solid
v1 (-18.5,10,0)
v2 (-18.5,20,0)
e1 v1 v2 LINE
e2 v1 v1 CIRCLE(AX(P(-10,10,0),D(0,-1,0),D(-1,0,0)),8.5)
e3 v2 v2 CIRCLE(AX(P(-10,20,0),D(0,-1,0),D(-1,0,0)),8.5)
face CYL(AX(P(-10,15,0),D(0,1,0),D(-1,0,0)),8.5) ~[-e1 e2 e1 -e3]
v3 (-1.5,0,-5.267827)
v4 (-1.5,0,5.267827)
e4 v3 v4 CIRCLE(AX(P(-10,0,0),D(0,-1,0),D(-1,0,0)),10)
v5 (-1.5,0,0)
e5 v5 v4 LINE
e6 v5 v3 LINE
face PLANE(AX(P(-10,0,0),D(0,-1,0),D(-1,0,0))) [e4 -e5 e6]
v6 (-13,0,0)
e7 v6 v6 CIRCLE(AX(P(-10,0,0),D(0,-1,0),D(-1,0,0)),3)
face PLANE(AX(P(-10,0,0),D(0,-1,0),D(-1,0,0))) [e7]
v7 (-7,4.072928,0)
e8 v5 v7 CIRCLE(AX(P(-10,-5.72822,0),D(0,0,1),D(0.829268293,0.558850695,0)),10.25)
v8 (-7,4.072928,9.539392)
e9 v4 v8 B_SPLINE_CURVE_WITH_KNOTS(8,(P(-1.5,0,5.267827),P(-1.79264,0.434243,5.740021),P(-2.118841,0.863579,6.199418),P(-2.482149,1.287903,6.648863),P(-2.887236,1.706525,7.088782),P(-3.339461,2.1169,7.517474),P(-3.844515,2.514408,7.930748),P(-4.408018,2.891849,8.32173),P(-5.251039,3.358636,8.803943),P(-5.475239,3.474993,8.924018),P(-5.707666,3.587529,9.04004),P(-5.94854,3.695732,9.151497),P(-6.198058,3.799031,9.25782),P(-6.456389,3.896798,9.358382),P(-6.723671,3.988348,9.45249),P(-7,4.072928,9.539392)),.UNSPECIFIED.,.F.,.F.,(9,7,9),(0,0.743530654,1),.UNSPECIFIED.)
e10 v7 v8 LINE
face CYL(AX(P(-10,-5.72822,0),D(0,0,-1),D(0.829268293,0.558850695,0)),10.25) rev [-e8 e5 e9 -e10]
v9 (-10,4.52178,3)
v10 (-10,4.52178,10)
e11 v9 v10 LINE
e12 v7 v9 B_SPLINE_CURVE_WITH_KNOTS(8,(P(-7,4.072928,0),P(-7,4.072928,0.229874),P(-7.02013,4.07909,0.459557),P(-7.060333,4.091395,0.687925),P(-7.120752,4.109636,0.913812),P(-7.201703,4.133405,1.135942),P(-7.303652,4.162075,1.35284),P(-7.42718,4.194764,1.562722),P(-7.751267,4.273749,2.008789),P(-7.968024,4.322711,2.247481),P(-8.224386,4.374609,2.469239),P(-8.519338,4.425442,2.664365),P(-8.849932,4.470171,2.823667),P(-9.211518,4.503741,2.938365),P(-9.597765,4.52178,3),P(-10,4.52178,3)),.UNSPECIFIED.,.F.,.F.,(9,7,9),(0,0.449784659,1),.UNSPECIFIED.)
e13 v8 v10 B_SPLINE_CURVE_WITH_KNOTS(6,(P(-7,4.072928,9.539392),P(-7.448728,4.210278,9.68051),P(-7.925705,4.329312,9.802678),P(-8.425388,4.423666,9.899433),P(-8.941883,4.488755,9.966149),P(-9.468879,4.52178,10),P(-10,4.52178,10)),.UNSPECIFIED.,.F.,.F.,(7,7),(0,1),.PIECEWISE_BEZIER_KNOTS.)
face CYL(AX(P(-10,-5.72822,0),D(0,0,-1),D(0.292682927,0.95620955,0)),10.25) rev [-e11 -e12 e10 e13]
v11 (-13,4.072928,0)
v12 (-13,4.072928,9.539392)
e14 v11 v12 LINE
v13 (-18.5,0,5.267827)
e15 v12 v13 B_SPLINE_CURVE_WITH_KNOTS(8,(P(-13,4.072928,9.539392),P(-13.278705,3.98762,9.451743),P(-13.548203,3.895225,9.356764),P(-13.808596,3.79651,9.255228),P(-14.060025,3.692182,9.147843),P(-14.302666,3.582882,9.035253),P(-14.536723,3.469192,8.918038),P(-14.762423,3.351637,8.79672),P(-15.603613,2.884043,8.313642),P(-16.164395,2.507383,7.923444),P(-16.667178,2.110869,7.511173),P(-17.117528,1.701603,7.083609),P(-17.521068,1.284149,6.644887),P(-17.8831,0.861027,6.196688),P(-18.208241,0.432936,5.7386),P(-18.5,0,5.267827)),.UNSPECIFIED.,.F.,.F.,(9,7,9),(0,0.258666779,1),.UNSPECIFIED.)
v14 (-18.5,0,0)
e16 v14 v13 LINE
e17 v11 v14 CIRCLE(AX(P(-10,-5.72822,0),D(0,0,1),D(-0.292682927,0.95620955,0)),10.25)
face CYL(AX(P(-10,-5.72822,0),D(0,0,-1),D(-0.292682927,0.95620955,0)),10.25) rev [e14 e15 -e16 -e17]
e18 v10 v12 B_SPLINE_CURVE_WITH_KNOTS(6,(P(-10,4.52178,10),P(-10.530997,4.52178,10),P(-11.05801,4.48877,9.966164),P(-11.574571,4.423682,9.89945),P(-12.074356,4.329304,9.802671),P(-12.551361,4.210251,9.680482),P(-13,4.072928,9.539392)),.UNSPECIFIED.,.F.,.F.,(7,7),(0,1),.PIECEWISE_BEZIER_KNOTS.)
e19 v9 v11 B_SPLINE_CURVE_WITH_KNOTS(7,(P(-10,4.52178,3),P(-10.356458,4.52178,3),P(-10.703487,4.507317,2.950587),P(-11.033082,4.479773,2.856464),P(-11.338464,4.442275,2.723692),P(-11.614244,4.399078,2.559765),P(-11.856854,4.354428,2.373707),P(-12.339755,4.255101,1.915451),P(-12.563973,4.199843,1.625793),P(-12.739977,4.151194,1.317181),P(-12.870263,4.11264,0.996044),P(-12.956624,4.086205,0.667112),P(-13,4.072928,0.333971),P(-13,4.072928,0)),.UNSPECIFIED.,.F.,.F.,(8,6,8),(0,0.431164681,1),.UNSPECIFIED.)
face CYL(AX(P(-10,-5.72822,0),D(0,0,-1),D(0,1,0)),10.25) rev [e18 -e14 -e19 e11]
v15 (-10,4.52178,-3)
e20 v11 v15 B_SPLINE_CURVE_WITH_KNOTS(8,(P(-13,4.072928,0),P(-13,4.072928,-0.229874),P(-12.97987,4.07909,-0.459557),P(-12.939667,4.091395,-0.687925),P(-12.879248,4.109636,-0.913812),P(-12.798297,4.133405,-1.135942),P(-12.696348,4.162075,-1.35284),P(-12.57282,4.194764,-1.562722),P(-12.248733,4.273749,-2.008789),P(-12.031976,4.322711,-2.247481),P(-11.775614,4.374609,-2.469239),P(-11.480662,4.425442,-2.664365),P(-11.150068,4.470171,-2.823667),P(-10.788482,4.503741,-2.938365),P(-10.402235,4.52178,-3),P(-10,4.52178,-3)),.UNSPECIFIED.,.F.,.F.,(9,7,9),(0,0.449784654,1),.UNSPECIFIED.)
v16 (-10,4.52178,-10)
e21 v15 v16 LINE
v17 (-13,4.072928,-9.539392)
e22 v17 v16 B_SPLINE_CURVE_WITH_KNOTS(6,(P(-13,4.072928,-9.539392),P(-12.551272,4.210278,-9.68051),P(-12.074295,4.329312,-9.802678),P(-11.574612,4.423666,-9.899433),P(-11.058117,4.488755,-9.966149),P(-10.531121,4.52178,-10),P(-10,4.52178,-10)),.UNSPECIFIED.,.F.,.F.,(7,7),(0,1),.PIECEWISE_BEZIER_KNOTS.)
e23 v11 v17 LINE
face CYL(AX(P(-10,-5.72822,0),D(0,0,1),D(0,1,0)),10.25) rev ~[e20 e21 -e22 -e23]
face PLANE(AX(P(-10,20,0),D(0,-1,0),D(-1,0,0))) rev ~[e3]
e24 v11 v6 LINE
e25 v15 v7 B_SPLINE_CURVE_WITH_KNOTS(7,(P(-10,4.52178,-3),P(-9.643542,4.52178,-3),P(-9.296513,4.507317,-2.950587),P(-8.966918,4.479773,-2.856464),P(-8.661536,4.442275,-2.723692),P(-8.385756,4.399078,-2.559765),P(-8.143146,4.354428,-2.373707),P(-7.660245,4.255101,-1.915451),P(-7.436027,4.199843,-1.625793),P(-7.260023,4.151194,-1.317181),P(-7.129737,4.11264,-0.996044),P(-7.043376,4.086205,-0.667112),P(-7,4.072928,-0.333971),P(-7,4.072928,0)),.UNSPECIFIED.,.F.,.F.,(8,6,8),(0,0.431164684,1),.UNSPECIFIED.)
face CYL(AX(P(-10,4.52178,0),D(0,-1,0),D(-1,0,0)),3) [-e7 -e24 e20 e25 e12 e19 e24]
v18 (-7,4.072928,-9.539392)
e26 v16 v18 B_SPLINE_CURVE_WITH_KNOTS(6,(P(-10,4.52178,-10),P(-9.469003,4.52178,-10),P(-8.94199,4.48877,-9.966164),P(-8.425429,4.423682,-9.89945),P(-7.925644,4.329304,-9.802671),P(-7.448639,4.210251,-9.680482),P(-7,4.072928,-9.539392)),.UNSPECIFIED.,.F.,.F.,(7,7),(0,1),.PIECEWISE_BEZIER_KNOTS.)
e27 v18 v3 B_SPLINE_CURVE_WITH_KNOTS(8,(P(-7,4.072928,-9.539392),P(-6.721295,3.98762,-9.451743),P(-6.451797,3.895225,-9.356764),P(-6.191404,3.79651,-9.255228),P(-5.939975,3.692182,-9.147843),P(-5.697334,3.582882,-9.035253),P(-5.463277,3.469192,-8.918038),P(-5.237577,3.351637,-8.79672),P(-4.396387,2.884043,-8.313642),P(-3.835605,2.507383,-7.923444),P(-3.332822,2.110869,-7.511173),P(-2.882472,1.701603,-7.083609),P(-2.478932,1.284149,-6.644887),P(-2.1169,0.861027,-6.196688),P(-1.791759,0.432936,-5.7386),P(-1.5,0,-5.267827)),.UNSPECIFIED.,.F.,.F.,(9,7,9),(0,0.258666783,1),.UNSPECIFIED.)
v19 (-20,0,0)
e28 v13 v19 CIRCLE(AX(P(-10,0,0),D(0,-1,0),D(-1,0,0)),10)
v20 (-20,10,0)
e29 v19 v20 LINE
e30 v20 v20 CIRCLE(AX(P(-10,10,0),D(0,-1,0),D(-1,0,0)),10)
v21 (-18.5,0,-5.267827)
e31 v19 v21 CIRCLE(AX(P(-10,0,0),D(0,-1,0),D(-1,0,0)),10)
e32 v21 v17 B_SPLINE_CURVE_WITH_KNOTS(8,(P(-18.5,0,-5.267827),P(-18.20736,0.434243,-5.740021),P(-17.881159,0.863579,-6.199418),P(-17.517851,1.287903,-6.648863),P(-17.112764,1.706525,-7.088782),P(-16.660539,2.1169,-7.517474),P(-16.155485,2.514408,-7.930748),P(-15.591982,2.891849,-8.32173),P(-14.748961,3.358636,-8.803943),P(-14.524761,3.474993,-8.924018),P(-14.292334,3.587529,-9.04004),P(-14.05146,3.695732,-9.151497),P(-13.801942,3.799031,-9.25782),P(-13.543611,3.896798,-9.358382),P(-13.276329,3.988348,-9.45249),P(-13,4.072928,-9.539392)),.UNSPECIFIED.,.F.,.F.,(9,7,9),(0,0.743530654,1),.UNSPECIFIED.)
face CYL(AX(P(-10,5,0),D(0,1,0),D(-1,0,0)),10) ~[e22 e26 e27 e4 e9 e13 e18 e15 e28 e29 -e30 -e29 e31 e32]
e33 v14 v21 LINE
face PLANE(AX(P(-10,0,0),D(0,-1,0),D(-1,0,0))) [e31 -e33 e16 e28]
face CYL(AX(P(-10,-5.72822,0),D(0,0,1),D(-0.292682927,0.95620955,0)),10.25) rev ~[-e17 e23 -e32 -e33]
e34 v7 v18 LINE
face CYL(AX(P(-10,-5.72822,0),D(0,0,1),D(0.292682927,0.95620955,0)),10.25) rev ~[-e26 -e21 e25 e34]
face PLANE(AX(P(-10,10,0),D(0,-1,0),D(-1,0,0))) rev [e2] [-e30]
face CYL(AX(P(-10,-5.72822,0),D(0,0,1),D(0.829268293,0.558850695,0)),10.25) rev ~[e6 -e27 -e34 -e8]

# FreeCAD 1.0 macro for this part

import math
import FreeCAD as App
import Part
import Sketcher

doc = App.newDocument("Part")
body = doc.addObject("PartDesign::Body", "Body")

# Sketch on XY plane
sketch1 = body.newObject("Sketcher::SketchObject", "Sketch")
sketch1.AttachmentSupport = (doc.getObject("XY_Plane"), [""])
sketch1.MapMode = "FlatFace"
sketch1.addGeometry([
    Part.LineSegment(App.Vector(-18.5, 10, 0), App.Vector(-20, 10, 0)),  # 0
    Part.LineSegment(App.Vector(-20, 10, 0), App.Vector(-20, 0, 0)),  # 1
    Part.LineSegment(App.Vector(-20, 0, 0), App.Vector(-10, 0, 0)),  # 2
    Part.LineSegment(App.Vector(-10, 0, 0), App.Vector(-10, 20, 0)),  # 3
    Part.LineSegment(App.Vector(-10, 20, 0), App.Vector(-18.5, 20, 0)),  # 4
    Part.LineSegment(App.Vector(-18.5, 20, 0), App.Vector(-18.5, 10, 0)),  # 5
], False)
sketch1.addGeometry(Part.LineSegment(App.Vector(-10, 20, 0), App.Vector(-10, 0, 0)), True)  # axis
sketch1.addConstraint([
    Sketcher.Constraint("Coincident", 0, 2, 1, 1),
    Sketcher.Constraint("Coincident", 1, 2, 2, 1),
    Sketcher.Constraint("Coincident", 2, 2, 3, 1),
    Sketcher.Constraint("Coincident", 3, 2, 4, 1),
    Sketcher.Constraint("Coincident", 4, 2, 5, 1),
    Sketcher.Constraint("Coincident", 5, 2, 0, 1),
    Sketcher.Constraint("Horizontal", 0),
    Sketcher.Constraint("Vertical", 1),
    Sketcher.Constraint("Horizontal", 2),
    Sketcher.Constraint("Vertical", 3),
    Sketcher.Constraint("Horizontal", 4),
    Sketcher.Constraint("Vertical", 5),
    Sketcher.Constraint("Vertical", 6),
    Sketcher.Constraint("Coincident", 6, 1, 3, 2),
    Sketcher.Constraint("PointOnObject", 1, 2, -1),
    Sketcher.Constraint("PointOnObject", 6, 2, -1),
    Sketcher.Constraint("Equal", 2, 1),
    Sketcher.Constraint("Equal", 1, 5),
    Sketcher.Constraint("DistanceX", 2, 1, 2, 2, 10.0),
    Sketcher.Constraint("DistanceX", 0, 2, 0, 1, 1.5),
    Sketcher.Constraint("DistanceX", 0, 2, -1, 1, 20.0),
])
revolution = body.newObject("PartDesign::Revolution", "Revolution")
revolution.Profile = sketch1
revolution.ReferenceAxis = (sketch1, ["Axis0"])
revolution.Angle = 360

# Sketch on XY plane
sketch2 = body.newObject("Sketcher::SketchObject", "Sketch001")
sketch2.AttachmentSupport = (doc.getObject("XY_Plane"), [""])
sketch2.MapMode = "FlatFace"
sketch2.addGeometry([
    Part.ArcOfCircle(Part.Circle(App.Vector(-10, -5.7, 0), App.Vector(0, 0, 1), 10.2), math.radians(107), math.radians(146)),  # 0
    Part.LineSegment(App.Vector(-18.5, 0, 0), App.Vector(-1.5, 0, 0)),  # 1
    Part.ArcOfCircle(Part.Circle(App.Vector(-10, -5.7, 0), App.Vector(0, 0, 1), 10.2), math.radians(34), math.radians(73)),  # 2
    Part.ArcOfCircle(Part.Circle(App.Vector(-10, -5.7, 0), App.Vector(0, 0, 1), 10.3), math.radians(72.98), math.radians(90)),  # 3
    Part.ArcOfCircle(Part.Circle(App.Vector(-10, -5.7, 0), App.Vector(0, 0, 1), 10.3), math.radians(90), math.radians(107.02)),  # 4
], False)
sketch2.addConstraint([
    Sketcher.Constraint("Coincident", 0, 2, 1, 1),
    Sketcher.Constraint("Coincident", 1, 2, 2, 1),
    Sketcher.Constraint("Tangent", 2, 2, 3, 1),
    Sketcher.Constraint("Tangent", 3, 2, 4, 1),
    Sketcher.Constraint("Tangent", 4, 2, 0, 1),
    Sketcher.Constraint("Horizontal", 1),
    Sketcher.Constraint("Coincident", 2, 3, 0, 3),
    Sketcher.Constraint("Equal", 0, 2),
    Sketcher.Constraint("PointOnObject", 0, 2, -1),
    Sketcher.Constraint("Horizontal", 2, 2, 4, 2),
    Sketcher.Constraint("Vertical", 4, 3, 3, 2),
    Sketcher.Constraint("DistanceX", 1, 1, 1, 2, 17.0),
    Sketcher.Constraint("Radius", 0, 10.25),
    Sketcher.Constraint("DistanceX", 0, 3, -1, 1, 10.0),
    Sketcher.Constraint("DistanceX", 2, 2, -1, 1, 7.0),
])
pocket1 = body.newObject("PartDesign::Pocket", "Pocket")
pocket1.Profile = sketch2
pocket1.Type = "ThroughAll"
pocket1.Midplane = True

# Sketch on XY plane
sketch3 = body.newObject("Sketcher::SketchObject", "Sketch002")
sketch3.AttachmentSupport = (doc.getObject("XY_Plane"), [""])
sketch3.MapMode = "FlatFace"
sketch3.addGeometry([
    Part.LineSegment(App.Vector(-10, 0, 0), App.Vector(-10, 4.5, 0)),
    Part.LineSegment(App.Vector(-10, 4.5, 0), App.Vector(-13, 4.5, 0)),
    Part.LineSegment(App.Vector(-13, 4.5, 0), App.Vector(-13, 0, 0)),
    Part.LineSegment(App.Vector(-13, 0, 0), App.Vector(-10, 0, 0)),
], False)
sketch3.addGeometry(Part.LineSegment(App.Vector(-10, 4.5, 0), App.Vector(-10, 0, 0)), True)  # axis
sketch3.addConstraint([
    Sketcher.Constraint("Coincident", 0, 2, 1, 1),
    Sketcher.Constraint("Coincident", 1, 2, 2, 1),
    Sketcher.Constraint("Coincident", 2, 2, 3, 1),
    Sketcher.Constraint("Coincident", 3, 2, 0, 1),
    Sketcher.Constraint("Vertical", 0),
    Sketcher.Constraint("Horizontal", 1),
    Sketcher.Constraint("Vertical", 2),
    Sketcher.Constraint("Horizontal", 3),
    Sketcher.Constraint("Vertical", 4),
    Sketcher.Constraint("Coincident", 4, 1, 0, 2),
    Sketcher.Constraint("PointOnObject", 2, 2, -1),
    Sketcher.Constraint("PointOnObject", 4, 2, -1),
    Sketcher.Constraint("DistanceX", 1, 2, 1, 1, 3.0),
    Sketcher.Constraint("DistanceX", 0, 2, -1, 1, 10.0),
    Sketcher.Constraint("DistanceY", 0, 1, 0, 2, 4.52178),
])
revolution2 = body.newObject("PartDesign::Revolution", "Revolution001")
revolution2.Profile = sketch3
revolution2.ReferenceAxis = (sketch3, ["Axis0"])
revolution2.Angle = 360

doc.recompute()
